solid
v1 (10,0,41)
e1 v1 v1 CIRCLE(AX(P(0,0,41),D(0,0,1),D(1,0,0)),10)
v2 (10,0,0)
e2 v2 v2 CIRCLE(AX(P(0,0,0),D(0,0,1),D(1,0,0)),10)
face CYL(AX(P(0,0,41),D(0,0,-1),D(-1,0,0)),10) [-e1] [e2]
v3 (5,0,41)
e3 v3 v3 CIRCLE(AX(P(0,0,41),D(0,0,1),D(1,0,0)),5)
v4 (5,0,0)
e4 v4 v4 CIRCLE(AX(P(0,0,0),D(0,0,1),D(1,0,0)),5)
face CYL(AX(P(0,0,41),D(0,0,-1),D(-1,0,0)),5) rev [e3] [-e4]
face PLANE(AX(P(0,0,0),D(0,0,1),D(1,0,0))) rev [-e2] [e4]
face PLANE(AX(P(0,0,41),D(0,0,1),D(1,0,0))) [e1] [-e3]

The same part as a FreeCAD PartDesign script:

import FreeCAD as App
import Part
import Sketcher

V = App.Vector

doc = App.newDocument("Part")
body = doc.addObject("PartDesign::Body", "Body")

# Sketch on XY plane
sketch1 = body.newObject("Sketcher::SketchObject", "Sketch")
sketch1.AttachmentSupport = (doc.getObject("XY_Plane"), [""])
sketch1.MapMode = "FlatFace"
sketch1.addGeometry([
    Part.Circle(V(0, 0, 0), V(0, 0, 1), 10),
    Part.Circle(V(0, 0, 0), V(0, 0, 1), 5),
], False)
sketch1.addConstraint([
    Sketcher.Constraint("Coincident", 0, 3, -1, 1),
    Sketcher.Constraint("Coincident", 1, 3, -1, 1),
    Sketcher.Constraint("Diameter", 0, 20.0),
    Sketcher.Constraint("Diameter", 1, 10.0),
])
pad1 = body.newObject("PartDesign::Pad", "Pad")
pad1.Profile = sketch1
pad1.Length = 41

doc.recompute()
